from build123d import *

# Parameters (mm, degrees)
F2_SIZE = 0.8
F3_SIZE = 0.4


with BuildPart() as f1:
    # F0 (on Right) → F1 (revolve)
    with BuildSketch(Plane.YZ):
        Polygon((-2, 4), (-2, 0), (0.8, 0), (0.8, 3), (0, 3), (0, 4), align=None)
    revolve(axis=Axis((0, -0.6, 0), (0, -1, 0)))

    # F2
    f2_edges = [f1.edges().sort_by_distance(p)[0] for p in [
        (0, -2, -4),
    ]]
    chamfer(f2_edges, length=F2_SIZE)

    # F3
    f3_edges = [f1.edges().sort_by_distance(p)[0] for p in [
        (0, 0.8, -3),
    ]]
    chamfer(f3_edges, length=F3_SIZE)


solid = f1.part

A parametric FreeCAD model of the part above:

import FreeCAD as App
import Part
import Sketcher
from FreeCAD import Vector
Q = App.Units.Quantity


def edges_at(feature, points):
    """Names of the edges that pass closest to the given points."""
    edges = feature.Shape.Edges
    near = lambda p: min(range(len(edges)), key=lambda i: edges[i].distToShape(Part.Vertex(*p))[0])
    return sorted({f"Edge{near(p) + 1}" for p in points})


def add_polygon(sketch, points):
    """Adds a closed chain of lines whose ends are joined by coincident constraints."""
    first, n = sketch.GeometryCount, len(points)
    for a, b in zip(points, points[1:] + points[:1]):
        sketch.addGeometry(Part.LineSegment(App.Vector(*a, 0), App.Vector(*b, 0)), False)
    for i in range(n):
        sketch.addConstraint(Sketcher.Constraint("Coincident", first + i, 2, first + (i + 1) % n, 1))

doc = App.newDocument("Part")
body = doc.addObject("PartDesign::Body", "Body")

sketch1 = body.newObject("Sketcher::SketchObject", "Sketch")
sketch1.AttachmentSupport = (doc.getObject("YZ_Plane"), [""])
sketch1.MapMode = "FlatFace"
add_polygon(sketch1, [(-2, 4), (-2, 0), (0.8, 0), (0.8, 3), (0, 3), (0, 4)])
sketch1.addConstraint(Sketcher.Constraint("Vertical", 0))
sketch1.addConstraint(Sketcher.Constraint("Horizontal", 1))
sketch1.addConstraint(Sketcher.Constraint("Vertical", 2))
sketch1.addConstraint(Sketcher.Constraint("Horizontal", 3))
sketch1.addConstraint(Sketcher.Constraint("Vertical", 4))
sketch1.addConstraint(Sketcher.Constraint("Horizontal", 5))
sketch1.addConstraint(Sketcher.Constraint("PointOnObject", 0, 2, -1))
sketch1.addConstraint(Sketcher.Constraint("PointOnObject", 3, 2, -2))
sketch1.addConstraint(Sketcher.Constraint("DistanceX", 5, 2, 5, 1, Q("2 mm")))
sketch1.addConstraint(Sketcher.Constraint("DistanceY", 0, 2, 0, 1, Q("4 mm")))
sketch1.addConstraint(Sketcher.Constraint("DistanceY", 2, 1, 2, 2, Q("3 mm")))
sketch1.addConstraint(Sketcher.Constraint("DistanceX", 1, 1, 1, 2, Q("2.8 mm")))
revolution = body.newObject("PartDesign::Revolution", "Revolution")
revolution.Profile = sketch1
revolution.ReferenceAxis = (sketch1, ["H_Axis"])
revolution.Angle = 360
doc.recompute()

chamfer = body.newObject("PartDesign::Chamfer", "Chamfer")
chamfer.Base = (revolution, edges_at(revolution, [(0, -2, -4)]))
chamfer.Size = 0.8
doc.recompute()

chamfer2 = body.newObject("PartDesign::Chamfer", "Chamfer001")
chamfer2.Base = (chamfer, edges_at(chamfer, [(0, 0.8, -3)]))
chamfer2.Size = 0.4

doc.recompute()
